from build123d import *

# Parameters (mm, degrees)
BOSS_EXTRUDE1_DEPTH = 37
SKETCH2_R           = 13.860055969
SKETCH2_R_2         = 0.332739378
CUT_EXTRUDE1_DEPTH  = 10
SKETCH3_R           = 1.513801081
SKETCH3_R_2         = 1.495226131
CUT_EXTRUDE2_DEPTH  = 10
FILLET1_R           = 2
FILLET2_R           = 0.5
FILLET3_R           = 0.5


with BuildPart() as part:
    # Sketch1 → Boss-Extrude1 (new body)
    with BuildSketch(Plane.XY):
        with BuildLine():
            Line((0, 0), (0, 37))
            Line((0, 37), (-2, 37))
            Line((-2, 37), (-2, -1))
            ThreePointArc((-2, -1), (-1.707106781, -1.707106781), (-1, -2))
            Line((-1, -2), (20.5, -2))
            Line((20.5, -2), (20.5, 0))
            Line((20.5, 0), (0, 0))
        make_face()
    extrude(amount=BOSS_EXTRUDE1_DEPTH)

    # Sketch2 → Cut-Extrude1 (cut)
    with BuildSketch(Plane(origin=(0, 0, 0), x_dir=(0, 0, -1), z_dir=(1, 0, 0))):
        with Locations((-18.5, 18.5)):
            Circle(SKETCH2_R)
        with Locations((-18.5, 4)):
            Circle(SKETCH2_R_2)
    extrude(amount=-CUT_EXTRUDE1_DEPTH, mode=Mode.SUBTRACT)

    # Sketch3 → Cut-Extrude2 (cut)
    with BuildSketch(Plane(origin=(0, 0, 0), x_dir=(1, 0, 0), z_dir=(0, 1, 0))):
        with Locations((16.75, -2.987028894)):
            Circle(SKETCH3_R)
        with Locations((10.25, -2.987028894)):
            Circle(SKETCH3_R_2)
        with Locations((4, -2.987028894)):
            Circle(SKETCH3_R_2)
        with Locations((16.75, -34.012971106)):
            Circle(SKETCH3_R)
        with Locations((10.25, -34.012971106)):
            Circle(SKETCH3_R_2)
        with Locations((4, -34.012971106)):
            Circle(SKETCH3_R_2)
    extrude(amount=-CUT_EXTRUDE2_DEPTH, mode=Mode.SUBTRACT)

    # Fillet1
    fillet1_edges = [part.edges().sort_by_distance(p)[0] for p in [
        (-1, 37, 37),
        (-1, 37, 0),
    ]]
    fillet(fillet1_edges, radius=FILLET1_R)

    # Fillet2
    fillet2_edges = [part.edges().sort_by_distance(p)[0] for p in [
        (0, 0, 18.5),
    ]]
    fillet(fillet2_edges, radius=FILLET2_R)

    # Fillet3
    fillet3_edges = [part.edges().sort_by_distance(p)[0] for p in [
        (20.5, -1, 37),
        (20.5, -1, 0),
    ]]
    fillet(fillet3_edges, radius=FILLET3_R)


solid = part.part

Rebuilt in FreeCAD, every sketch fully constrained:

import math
import FreeCAD as App
import Part
import Sketcher

V = App.Vector
Q = App.Units.Quantity


def edges_at(feature, points):
    """Names of the edges that pass closest to the given points."""
    edges = feature.Shape.Edges
    near = lambda p: min(range(len(edges)), key=lambda i: edges[i].distToShape(Part.Vertex(*p))[0])
    return sorted({f"Edge{near(p) + 1}" for p in points})

doc = App.newDocument("Part")
body = doc.addObject("PartDesign::Body", "Body")

# Sketch on XY plane
sketch1 = doc.addObject("Sketcher::SketchObject", "Sketch")
body.addObject(sketch1)
sketch1.AttachmentSupport = (doc.XY_Plane, [""])
sketch1.MapMode = "FlatFace"
sketch1.addGeometry([
    Part.LineSegment(V(0, 0, 0), V(0, 37, 0)),  # 0
    Part.LineSegment(V(0, 37, 0), V(-2, 37, 0)),  # 1
    Part.LineSegment(V(-2, 37, 0), V(-2, -1, 0)),  # 2
    Part.ArcOfCircle(Part.Circle(V(-1, -1, 0), V(0, 0, 1), 1), math.radians(-180), math.radians(-90)),  # 3
    Part.LineSegment(V(-1, -2, 0), V(20.5, -2, 0)),  # 4
    Part.LineSegment(V(20.5, -2, 0), V(20.5, 0, 0)),  # 5
    Part.LineSegment(V(20.5, 0, 0), V(0, 0, 0)),  # 6
], False)
sketch1.addConstraint([
    Sketcher.Constraint("Coincident", 0, 2, 1, 1),
    Sketcher.Constraint("Coincident", 1, 2, 2, 1),
    Sketcher.Constraint("Tangent", 2, 2, 3, 1),
    Sketcher.Constraint("Tangent", 3, 2, 4, 1),
    Sketcher.Constraint("Coincident", 4, 2, 5, 1),
    Sketcher.Constraint("Coincident", 5, 2, 6, 1),
    Sketcher.Constraint("Coincident", 6, 2, 0, 1),
    Sketcher.Constraint("Vertical", 0),
    Sketcher.Constraint("Horizontal", 1),
    Sketcher.Constraint("Vertical", 2),
    Sketcher.Constraint("Horizontal", 4),
    Sketcher.Constraint("Vertical", 5),
    Sketcher.Constraint("Horizontal", 6),
    Sketcher.Constraint("Coincident", 6, 2, -1, 1),
    Sketcher.Constraint("Equal", 1, 5),
    Sketcher.Constraint("Radius", 3, Q("1 mm")),
    Sketcher.Constraint("DistanceX", 1, 2, 1, 1, Q("2 mm")),
    Sketcher.Constraint("DistanceY", 0, 1, 0, 2, Q("37 mm")),
    Sketcher.Constraint("DistanceX", 4, 1, 4, 2, Q("21.5 mm")),
])
pad1 = doc.addObject("PartDesign::Pad", "Pad")
body.addObject(pad1)
pad1.Profile = sketch1
pad1.Length = 37

# Sketch on YZ plane
sketch2 = doc.addObject("Sketcher::SketchObject", "Sketch001")
body.addObject(sketch2)
sketch2.AttachmentSupport = (doc.YZ_Plane, [""])
sketch2.MapMode = "FlatFace"
sketch2.addGeometry([
    Part.Circle(V(18.5, 18.5, 0), V(0, 0, 1), 13.86),
    Part.Circle(V(4, 18.5, 0), V(0, 0, 1), 0.33),
], False)
sketch2.addConstraint([
    Sketcher.Constraint("Horizontal", 0, 3, 1, 3),
    Sketcher.Constraint("DistanceX", -1, 1, 1, 3, Q("4 mm")),
    Sketcher.Constraint("DistanceX", -1, 1, 0, 3, Q("18.5 mm")),
    Sketcher.Constraint("DistanceY", -1, 1, 0, 3, Q("18.5 mm")),
    Sketcher.Constraint("Diameter", 0, Q("27.720112 mm")),
    Sketcher.Constraint("Diameter", 1, Q("0.665479 mm")),
])
pocket1 = doc.addObject("PartDesign::Pocket", "Pocket")
body.addObject(pocket1)
pocket1.Profile = sketch2
pocket1.Length = 10

# Sketch on XZ plane
sketch3 = doc.addObject("Sketcher::SketchObject", "Sketch002")
body.addObject(sketch3)
sketch3.AttachmentSupport = (doc.XZ_Plane, [""])
sketch3.MapMode = "FlatFace"
sketch3.addGeometry([
    Part.Circle(V(16.8, 3, 0), V(0, 0, 1), 1.5),  # 0
    Part.Circle(V(10.2, 3, 0), V(0, 0, 1), 1.5),  # 1
    Part.Circle(V(4, 3, 0), V(0, 0, 1), 1.5),  # 2
    Part.Circle(V(16.8, 34, 0), V(0, 0, 1), 1.5),  # 3
    Part.Circle(V(10.2, 34, 0), V(0, 0, 1), 1.5),  # 4
    Part.Circle(V(4, 34, 0), V(0, 0, 1), 1.5),  # 5
], False)
sketch3.addConstraint([
    Sketcher.Constraint("Equal", 1, 2),
    Sketcher.Constraint("Equal", 0, 3),
    Sketcher.Constraint("Equal", 2, 4),
    Sketcher.Constraint("Equal", 4, 5),
    Sketcher.Constraint("Horizontal", 0, 3, 1, 3),
    Sketcher.Constraint("Horizontal", 1, 3, 2, 3),
    Sketcher.Constraint("Horizontal", 3, 3, 4, 3),
    Sketcher.Constraint("Horizontal", 4, 3, 5, 3),
    Sketcher.Constraint("Vertical", 0, 3, 3, 3),
    Sketcher.Constraint("Vertical", 1, 3, 4, 3),
    Sketcher.Constraint("Vertical", 2, 3, 5, 3),
    Sketcher.Constraint("DistanceX", -1, 1, 2, 3, Q("4 mm")),
    Sketcher.Constraint("DistanceX", 1, 3, 0, 3, Q("6.5 mm")),
    Sketcher.Constraint("DistanceX", -1, 1, 0, 3, Q("16.75 mm")),
    Sketcher.Constraint("Diameter", 0, Q("3.027602 mm")),
    Sketcher.Constraint("Diameter", 1, Q("2.990452 mm")),
    Sketcher.Constraint("DistanceY", -1, 1, 0, 3, Q("2.987029 mm")),
    Sketcher.Constraint("DistanceY", -1, 1, 3, 3, Q("34.012971 mm")),
])
pocket2 = doc.addObject("PartDesign::Pocket", "Pocket001")
body.addObject(pocket2)
pocket2.Profile = sketch3
pocket2.Length = 10
pocket2.Reversed = True
doc.recompute()

fillet = doc.addObject("PartDesign::Fillet", "Fillet")
body.addObject(fillet)
fillet.Base = (pocket2, edges_at(pocket2, [(-1, 37, 37), (-1, 37, 0)]))
fillet.Radius = 2
doc.recompute()

fillet2 = doc.addObject("PartDesign::Fillet", "Fillet001")
body.addObject(fillet2)
fillet2.Base = (fillet, edges_at(fillet, [(0, 0, 18.5)]))
fillet2.Radius = 0.5
doc.recompute()

fillet3 = doc.addObject("PartDesign::Fillet", "Fillet002")
body.addObject(fillet3)
fillet3.Base = (fillet2, edges_at(fillet2, [(20.5, -1, 37), (20.5, -1, 0)]))
fillet3.Radius = 0.5

doc.recompute()
